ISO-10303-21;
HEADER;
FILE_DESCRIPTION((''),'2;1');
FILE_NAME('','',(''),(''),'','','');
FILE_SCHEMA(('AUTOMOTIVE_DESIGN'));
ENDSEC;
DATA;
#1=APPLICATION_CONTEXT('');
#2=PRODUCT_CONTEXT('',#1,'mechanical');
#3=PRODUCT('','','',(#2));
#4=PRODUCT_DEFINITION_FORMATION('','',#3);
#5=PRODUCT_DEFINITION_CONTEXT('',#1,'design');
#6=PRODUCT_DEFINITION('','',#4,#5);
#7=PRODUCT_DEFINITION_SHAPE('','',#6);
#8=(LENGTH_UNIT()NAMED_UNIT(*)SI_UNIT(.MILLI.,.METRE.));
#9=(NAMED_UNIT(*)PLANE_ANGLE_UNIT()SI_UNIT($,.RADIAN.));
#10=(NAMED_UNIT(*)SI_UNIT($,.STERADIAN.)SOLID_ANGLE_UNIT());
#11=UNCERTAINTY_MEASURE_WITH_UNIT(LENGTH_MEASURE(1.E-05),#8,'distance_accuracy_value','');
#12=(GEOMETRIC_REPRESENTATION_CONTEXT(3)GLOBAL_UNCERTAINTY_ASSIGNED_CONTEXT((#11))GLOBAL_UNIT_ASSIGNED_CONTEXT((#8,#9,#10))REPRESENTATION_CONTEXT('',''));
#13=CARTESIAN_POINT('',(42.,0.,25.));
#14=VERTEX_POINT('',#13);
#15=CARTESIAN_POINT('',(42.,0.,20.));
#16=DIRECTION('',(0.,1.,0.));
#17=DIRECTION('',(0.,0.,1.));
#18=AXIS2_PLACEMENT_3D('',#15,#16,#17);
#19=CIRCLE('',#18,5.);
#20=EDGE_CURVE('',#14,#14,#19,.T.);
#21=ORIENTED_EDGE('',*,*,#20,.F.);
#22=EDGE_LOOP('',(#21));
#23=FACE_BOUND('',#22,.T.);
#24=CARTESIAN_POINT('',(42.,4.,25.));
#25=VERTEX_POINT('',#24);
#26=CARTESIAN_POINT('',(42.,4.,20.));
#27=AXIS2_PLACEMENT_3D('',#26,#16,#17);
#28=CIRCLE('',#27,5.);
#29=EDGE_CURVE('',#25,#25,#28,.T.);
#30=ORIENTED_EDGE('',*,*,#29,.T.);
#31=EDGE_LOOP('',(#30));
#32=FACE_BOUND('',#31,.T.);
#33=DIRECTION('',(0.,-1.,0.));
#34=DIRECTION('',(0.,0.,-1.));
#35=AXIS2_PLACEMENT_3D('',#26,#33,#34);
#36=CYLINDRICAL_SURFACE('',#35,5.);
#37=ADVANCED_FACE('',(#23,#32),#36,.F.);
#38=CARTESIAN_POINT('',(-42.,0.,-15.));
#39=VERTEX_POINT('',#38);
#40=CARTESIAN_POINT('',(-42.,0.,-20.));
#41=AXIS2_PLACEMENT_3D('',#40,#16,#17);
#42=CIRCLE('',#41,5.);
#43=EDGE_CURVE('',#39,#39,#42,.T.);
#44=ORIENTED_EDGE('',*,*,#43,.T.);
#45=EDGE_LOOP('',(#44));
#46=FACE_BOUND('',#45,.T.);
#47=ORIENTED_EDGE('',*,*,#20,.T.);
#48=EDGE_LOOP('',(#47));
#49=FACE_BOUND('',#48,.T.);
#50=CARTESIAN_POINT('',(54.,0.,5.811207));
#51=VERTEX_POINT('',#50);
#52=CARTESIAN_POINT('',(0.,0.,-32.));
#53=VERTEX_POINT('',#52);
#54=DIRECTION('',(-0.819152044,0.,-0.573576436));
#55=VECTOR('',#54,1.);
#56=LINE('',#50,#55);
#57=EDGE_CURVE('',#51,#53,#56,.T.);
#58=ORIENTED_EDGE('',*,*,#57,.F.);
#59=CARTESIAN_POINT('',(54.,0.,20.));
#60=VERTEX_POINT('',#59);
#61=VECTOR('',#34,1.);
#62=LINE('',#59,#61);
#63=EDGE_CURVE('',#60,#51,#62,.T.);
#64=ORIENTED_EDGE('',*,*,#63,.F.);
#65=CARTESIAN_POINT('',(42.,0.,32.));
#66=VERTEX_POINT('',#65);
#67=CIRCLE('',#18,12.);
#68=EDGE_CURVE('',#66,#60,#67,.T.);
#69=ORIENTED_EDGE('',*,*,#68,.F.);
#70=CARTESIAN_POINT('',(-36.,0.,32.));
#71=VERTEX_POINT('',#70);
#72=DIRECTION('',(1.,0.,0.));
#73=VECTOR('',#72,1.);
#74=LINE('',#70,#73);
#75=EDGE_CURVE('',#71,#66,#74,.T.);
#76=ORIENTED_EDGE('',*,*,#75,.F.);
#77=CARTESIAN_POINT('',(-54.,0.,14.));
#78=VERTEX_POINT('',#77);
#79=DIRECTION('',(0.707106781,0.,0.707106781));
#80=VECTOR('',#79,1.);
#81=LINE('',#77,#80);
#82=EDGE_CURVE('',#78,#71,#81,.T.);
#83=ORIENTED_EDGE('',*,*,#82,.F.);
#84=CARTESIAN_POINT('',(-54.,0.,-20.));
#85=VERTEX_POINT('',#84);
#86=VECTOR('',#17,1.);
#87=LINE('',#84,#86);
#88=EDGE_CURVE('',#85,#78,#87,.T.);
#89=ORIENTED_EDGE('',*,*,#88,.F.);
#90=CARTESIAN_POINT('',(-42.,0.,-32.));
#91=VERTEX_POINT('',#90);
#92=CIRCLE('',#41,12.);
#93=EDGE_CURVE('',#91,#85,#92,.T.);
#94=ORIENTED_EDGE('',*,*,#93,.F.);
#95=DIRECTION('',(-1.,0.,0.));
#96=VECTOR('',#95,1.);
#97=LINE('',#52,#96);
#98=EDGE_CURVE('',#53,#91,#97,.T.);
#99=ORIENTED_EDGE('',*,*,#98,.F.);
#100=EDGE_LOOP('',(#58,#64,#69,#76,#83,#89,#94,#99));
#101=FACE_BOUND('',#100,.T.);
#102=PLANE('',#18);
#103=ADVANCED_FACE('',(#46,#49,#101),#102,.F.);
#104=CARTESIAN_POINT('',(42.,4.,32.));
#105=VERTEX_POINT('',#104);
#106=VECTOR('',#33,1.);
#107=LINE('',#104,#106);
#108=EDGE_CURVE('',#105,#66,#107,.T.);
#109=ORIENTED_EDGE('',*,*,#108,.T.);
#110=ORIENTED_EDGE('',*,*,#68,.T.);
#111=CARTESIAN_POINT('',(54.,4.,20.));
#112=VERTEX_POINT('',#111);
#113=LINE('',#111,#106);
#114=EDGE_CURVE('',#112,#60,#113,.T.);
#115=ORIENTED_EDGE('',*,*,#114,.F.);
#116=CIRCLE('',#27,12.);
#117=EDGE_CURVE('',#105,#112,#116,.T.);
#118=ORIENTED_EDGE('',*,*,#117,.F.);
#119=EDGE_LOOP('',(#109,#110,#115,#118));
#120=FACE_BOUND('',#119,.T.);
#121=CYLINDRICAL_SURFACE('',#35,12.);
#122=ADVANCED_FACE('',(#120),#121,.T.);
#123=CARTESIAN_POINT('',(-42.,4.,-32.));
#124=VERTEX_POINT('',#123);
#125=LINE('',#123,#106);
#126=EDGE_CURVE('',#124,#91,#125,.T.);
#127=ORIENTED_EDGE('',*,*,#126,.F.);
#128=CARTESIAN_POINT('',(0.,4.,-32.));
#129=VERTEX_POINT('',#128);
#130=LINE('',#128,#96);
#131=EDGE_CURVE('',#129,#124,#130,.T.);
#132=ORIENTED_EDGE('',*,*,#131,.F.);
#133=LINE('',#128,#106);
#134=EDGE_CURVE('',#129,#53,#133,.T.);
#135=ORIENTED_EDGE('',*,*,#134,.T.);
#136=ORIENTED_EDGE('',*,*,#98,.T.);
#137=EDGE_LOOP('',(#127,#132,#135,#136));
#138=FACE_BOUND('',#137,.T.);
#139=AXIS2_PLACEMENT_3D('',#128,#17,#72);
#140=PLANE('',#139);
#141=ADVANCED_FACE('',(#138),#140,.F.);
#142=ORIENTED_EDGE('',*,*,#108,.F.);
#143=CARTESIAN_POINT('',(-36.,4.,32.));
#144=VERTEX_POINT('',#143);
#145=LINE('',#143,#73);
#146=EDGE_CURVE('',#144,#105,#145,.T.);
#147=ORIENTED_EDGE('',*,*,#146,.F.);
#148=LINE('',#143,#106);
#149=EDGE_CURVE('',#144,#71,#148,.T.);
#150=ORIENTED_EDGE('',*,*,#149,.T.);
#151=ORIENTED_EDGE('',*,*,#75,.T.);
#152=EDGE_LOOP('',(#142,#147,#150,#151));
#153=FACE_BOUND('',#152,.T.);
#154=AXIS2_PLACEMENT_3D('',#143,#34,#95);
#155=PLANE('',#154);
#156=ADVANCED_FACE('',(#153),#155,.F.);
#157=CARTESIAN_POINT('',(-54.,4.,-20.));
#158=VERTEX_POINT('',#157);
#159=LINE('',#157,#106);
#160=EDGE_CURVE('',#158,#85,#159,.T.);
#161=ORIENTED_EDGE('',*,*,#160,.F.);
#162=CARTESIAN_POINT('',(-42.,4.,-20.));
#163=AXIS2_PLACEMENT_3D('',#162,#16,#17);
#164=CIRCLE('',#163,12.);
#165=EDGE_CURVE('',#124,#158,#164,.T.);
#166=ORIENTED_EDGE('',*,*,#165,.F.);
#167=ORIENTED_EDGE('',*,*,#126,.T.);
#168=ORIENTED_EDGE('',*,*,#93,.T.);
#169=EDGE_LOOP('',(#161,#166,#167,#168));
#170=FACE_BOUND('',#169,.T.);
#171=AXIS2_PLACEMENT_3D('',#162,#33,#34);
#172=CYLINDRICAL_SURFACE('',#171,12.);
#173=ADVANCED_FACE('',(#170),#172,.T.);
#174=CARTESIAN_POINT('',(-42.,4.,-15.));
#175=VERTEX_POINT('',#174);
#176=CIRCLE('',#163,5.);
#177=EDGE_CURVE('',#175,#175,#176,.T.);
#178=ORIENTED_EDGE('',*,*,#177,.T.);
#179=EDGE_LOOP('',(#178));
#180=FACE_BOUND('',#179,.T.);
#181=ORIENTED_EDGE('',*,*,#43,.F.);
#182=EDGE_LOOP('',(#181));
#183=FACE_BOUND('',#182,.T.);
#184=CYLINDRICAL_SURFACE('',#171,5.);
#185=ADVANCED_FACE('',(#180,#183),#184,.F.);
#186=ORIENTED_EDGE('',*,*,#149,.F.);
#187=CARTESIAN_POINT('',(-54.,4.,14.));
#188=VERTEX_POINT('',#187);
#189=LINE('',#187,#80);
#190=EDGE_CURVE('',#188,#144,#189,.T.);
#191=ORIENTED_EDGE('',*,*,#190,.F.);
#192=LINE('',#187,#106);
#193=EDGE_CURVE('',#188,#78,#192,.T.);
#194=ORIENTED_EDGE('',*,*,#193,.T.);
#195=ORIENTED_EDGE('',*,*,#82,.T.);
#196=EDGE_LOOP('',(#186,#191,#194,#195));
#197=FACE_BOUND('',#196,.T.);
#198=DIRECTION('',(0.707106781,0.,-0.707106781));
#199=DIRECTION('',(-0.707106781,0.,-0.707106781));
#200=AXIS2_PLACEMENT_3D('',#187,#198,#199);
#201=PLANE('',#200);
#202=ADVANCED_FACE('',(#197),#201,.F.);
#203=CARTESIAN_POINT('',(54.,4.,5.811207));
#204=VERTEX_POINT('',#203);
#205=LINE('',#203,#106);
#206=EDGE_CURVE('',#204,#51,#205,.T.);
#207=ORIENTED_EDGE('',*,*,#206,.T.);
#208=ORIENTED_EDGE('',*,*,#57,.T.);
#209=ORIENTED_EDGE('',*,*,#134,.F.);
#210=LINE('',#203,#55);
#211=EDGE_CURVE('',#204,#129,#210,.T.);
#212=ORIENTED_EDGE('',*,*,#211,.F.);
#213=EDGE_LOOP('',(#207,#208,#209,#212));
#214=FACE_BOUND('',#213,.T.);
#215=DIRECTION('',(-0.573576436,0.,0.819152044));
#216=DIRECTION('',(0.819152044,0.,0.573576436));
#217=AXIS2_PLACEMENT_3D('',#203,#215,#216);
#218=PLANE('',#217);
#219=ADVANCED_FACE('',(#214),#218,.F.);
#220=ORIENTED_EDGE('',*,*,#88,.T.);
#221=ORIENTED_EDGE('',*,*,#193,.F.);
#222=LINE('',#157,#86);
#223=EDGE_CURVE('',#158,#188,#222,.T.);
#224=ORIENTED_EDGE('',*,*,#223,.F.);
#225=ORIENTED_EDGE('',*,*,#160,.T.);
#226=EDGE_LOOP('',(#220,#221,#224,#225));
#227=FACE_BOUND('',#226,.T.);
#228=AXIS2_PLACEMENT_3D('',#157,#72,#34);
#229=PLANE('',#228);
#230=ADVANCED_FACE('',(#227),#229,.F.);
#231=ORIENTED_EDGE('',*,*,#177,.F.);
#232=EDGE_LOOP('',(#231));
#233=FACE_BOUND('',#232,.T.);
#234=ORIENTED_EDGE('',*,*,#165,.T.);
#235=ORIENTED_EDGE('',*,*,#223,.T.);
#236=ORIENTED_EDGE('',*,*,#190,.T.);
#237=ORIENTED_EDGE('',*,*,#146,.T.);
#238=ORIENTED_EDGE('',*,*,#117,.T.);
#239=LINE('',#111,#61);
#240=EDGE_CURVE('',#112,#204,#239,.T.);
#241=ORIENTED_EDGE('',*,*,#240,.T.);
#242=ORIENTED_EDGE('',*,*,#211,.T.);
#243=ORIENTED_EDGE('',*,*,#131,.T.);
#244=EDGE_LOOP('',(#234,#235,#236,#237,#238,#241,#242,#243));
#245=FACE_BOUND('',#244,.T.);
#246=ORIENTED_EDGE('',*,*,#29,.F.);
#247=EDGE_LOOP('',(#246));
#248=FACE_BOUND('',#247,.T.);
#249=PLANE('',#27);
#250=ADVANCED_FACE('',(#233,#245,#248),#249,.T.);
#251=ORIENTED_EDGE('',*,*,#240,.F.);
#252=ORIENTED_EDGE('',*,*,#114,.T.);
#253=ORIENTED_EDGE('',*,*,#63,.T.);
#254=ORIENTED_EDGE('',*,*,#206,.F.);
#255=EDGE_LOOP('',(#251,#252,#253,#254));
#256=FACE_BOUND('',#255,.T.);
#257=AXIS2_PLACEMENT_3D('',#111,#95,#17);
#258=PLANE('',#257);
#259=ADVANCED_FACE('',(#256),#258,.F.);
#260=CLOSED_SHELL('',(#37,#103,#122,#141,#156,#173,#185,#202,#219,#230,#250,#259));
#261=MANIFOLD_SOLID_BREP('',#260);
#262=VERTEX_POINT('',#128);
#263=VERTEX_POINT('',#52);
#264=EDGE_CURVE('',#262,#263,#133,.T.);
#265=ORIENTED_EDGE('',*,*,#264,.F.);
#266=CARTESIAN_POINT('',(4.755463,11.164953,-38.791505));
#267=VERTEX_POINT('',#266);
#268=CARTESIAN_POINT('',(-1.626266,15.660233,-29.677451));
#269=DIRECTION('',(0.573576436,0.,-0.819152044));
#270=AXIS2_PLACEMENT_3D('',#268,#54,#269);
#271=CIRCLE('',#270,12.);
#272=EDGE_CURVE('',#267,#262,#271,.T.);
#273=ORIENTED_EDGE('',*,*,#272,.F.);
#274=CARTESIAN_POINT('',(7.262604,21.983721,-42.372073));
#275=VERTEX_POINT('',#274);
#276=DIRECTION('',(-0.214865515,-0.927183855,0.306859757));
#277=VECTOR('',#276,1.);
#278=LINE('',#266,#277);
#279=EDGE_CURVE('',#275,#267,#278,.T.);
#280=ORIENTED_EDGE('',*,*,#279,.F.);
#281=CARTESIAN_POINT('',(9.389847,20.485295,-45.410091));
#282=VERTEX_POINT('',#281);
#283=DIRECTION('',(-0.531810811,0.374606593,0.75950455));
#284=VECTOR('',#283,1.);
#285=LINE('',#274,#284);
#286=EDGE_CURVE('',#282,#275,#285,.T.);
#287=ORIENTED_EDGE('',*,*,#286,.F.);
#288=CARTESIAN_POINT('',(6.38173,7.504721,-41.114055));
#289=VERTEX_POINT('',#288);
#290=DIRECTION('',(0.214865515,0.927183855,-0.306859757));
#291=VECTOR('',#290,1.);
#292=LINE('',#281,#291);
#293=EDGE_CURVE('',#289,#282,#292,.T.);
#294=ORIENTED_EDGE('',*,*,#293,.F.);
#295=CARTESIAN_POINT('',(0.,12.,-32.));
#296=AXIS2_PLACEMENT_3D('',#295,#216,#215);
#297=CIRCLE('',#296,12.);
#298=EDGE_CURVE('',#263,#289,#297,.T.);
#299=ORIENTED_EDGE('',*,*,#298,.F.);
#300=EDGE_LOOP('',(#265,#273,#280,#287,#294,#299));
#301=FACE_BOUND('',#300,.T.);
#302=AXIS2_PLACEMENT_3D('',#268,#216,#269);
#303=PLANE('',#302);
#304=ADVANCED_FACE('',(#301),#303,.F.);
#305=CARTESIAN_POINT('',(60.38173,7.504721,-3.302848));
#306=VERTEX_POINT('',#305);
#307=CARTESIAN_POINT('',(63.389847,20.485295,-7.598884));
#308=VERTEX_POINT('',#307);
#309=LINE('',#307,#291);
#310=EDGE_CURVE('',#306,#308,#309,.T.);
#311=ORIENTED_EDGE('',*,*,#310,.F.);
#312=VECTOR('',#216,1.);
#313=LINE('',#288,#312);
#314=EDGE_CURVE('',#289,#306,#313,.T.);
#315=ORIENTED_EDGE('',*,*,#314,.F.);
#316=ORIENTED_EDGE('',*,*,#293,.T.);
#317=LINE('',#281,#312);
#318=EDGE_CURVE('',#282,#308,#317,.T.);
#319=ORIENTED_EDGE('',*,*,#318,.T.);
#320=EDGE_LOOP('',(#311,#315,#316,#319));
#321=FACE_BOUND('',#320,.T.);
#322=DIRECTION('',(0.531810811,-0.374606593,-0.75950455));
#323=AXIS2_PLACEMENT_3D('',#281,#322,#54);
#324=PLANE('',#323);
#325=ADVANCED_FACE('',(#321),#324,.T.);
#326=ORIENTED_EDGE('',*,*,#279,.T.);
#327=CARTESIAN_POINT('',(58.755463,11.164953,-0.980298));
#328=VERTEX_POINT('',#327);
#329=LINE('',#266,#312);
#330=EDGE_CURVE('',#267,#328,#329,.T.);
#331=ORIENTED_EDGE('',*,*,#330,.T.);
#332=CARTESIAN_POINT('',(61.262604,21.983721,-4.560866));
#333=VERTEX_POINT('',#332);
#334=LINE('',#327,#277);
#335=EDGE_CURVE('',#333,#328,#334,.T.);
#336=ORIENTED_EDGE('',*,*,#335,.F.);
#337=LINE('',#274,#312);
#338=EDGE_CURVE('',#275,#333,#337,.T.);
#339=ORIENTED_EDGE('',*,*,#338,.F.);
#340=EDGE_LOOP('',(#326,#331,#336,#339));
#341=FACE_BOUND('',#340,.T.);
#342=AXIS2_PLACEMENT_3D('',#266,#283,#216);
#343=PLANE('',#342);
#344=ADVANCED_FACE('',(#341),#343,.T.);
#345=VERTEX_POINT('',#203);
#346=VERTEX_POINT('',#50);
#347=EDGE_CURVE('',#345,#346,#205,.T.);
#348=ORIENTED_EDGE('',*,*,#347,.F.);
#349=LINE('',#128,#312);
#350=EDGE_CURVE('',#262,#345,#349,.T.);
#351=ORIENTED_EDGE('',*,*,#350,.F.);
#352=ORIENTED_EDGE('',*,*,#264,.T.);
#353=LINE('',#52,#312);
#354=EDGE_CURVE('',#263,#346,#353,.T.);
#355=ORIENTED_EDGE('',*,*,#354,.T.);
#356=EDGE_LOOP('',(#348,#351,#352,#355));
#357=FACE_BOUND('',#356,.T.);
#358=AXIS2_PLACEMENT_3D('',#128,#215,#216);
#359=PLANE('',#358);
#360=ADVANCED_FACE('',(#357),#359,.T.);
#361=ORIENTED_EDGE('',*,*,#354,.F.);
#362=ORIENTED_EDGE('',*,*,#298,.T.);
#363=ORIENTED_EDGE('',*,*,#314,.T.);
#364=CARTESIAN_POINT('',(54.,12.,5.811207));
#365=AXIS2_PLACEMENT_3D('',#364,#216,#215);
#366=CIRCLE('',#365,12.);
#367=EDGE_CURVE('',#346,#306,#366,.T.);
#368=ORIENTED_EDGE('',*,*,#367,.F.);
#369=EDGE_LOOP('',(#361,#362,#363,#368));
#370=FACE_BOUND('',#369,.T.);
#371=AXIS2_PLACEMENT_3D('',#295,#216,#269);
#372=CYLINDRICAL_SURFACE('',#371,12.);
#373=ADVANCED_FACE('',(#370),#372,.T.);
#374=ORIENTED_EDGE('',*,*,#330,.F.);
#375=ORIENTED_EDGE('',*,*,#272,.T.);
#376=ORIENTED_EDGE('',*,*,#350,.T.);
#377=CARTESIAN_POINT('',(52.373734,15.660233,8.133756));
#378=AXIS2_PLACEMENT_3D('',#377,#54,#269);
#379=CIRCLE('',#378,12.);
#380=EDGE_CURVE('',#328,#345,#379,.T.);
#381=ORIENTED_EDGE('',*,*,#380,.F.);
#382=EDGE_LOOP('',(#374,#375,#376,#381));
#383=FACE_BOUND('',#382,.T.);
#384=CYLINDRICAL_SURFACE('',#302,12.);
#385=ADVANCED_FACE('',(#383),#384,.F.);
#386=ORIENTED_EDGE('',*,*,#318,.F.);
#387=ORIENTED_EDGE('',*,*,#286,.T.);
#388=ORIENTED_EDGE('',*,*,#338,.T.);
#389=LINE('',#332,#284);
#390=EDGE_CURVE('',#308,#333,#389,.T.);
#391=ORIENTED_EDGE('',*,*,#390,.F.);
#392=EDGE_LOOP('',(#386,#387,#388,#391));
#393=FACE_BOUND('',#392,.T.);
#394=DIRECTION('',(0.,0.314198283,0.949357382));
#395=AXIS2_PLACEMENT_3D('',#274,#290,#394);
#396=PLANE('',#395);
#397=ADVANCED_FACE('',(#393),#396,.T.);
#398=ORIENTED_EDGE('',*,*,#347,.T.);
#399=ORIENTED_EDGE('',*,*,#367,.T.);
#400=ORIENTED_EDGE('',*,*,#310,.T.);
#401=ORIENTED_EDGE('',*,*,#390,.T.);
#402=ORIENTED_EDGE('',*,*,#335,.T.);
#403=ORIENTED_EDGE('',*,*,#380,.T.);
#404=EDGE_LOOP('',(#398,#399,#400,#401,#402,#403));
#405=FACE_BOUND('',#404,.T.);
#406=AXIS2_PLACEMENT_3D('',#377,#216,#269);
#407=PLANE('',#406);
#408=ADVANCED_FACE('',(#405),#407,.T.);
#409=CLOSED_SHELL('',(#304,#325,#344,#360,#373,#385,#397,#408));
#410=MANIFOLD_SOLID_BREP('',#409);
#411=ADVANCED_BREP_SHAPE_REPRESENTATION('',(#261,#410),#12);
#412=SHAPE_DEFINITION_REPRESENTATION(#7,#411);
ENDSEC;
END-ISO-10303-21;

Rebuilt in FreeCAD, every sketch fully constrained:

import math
import FreeCAD as App
import Part
import Sketcher
from FreeCAD import Vector
Q = App.Units.Quantity

doc = App.newDocument("Part")
body = doc.addObject("PartDesign::Body", "Body")

sketch1 = body.newObject("Sketcher::SketchObject", "Sketch")
sketch1.AttachmentSupport = (doc.getObject("XZ_Plane"), [""])
sketch1.MapMode = "FlatFace"
sketch1.addGeometry([
    Part.LineSegment(Vector(0, -32, 0), Vector(-42, -32, 0)),
    Part.ArcOfCircle(Part.Circle(Vector(-42, -20, 0), Vector(0, 0, 1), 12), math.radians(-180), math.radians(-90)),
    Part.LineSegment(Vector(-54, -20, 0), Vector(-54, 14, 0)),
    Part.LineSegment(Vector(-54, 14, 0), Vector(-36, 32, 0)),
    Part.LineSegment(Vector(-36, 32, 0), Vector(42, 32, 0)),
    Part.ArcOfCircle(Part.Circle(Vector(42, 20, 0), Vector(0, 0, 1), 12), math.radians(0), math.radians(90)),
    Part.LineSegment(Vector(54, 20, 0), Vector(54, 6, 0)),
    Part.LineSegment(Vector(54, 6, 0), Vector(0, -32, 0)),
    Part.Circle(Vector(42, 20, 0), Vector(0, 0, 1), 5),
    Part.Circle(Vector(-42, -20, 0), Vector(0, 0, 1), 5),
], False)
sketch1.addConstraint([
    Sketcher.Constraint("Tangent", 0, 2, 1, 2),
    Sketcher.Constraint("Tangent", 1, 1, 2, 1),
    Sketcher.Constraint("Coincident", 2, 2, 3, 1),
    Sketcher.Constraint("Coincident", 3, 2, 4, 1),
    Sketcher.Constraint("Tangent", 4, 2, 5, 2),
    Sketcher.Constraint("Tangent", 5, 1, 6, 1),
    Sketcher.Constraint("Coincident", 6, 2, 7, 1),
    Sketcher.Constraint("Coincident", 7, 2, 0, 1),
    Sketcher.Constraint("Horizontal", 0),
    Sketcher.Constraint("Vertical", 2),
    Sketcher.Constraint("Horizontal", 4),
    Sketcher.Constraint("Vertical", 6),
    Sketcher.Constraint("Coincident", 8, 3, 5, 3),
    Sketcher.Constraint("Coincident", 9, 3, 1, 3),
    Sketcher.Constraint("Equal", 1, 5),
    Sketcher.Constraint("Equal", 8, 9),
    Sketcher.Constraint("Symmetric", 1, 3, 5, 3, -1, 1),
    Sketcher.Constraint("PointOnObject", 7, 2, -2),
    Sketcher.Constraint("Diameter", 8, Q("10 mm")),
    Sketcher.Constraint("Radius", 1, Q("12 mm")),
    Sketcher.Constraint("DistanceX", 0, 2, 0, 1, Q("42 mm")),
    Sketcher.Constraint("DistanceX", 4, 1, 4, 2, Q("78 mm")),
    Sketcher.Constraint("DistanceY", 2, 1, 2, 2, Q("34 mm")),
    Sketcher.Constraint("Angle", 3, Q("45 deg")),
    Sketcher.Constraint("Angle", 7, Q("-145 deg")),
])
pad1 = body.newObject("PartDesign::Pad", "Pad")
pad1.Profile = sketch1
pad1.Length = 4
pad1.Reversed = True
body2 = doc.addObject("PartDesign::Body", "Body001")

sketch2 = body2.newObject("Sketcher::SketchObject", "Sketch001")
sketch2.Placement = App.Placement(Vector(38.964918, 0, 27.283529), App.Rotation(Vector(0, -1, 0), Vector(0.573576436, 0, -0.819152044), Vector(0.819152044, 0, 0.573576436), "ZXY"))
sketch2.addGeometry([
    Part.LineSegment(Vector(-22, 38.9, 0), Vector(-11.2, 34.5, 0)),
    Part.ArcOfCircle(Part.Circle(Vector(-15.7, 23.4, 0), Vector(0, 0, 1), 12), math.radians(14), math.radians(68)),
    Part.LineSegment(Vector(-4, 26.2, 0), Vector(0, 26.2, 0)),
    Part.ArcOfCircle(Part.Circle(Vector(-12, 26.2, 0), Vector(0, 0, 1), 12), math.radians(0), math.radians(68)),
    Part.LineSegment(Vector(-7.5, 37.3, 0), Vector(-20.5, 42.6, 0)),
    Part.LineSegment(Vector(-20.5, 42.6, 0), Vector(-22, 38.9, 0)),
], False)
sketch2.addConstraint([
    Sketcher.Constraint("Tangent", 0, 2, 1, 2),
    Sketcher.Constraint("Coincident", 1, 1, 2, 1),
    Sketcher.Constraint("Coincident", 2, 2, 3, 1),
    Sketcher.Constraint("Tangent", 3, 2, 4, 1),
    Sketcher.Constraint("Coincident", 4, 2, 5, 1),
    Sketcher.Constraint("Coincident", 5, 2, 0, 1),
    Sketcher.Constraint("Horizontal", 2),
    Sketcher.Constraint("Equal", 1, 3),
    Sketcher.Constraint("PointOnObject", 2, 2, -2),
    Sketcher.Constraint("Parallel", 0, 4),
    Sketcher.Constraint("Perpendicular", 4, 5),
    Sketcher.Constraint("Horizontal", 3, 3, 1, 1),
    Sketcher.Constraint("Radius", 1, Q("12 mm")),
    Sketcher.Constraint("DistanceX", 2, 1, 2, 2, Q("4 mm")),
    Sketcher.Constraint("Angle", 0, Q("-22 deg")),
    Sketcher.Constraint("Distance", 4, Q("14 mm")),
    Sketcher.Constraint("Distance", 5, Q("4 mm")),
    Sketcher.Constraint("DistanceY", -1, 1, 3, 2, Q("37.339072 mm")),
])
pad2 = body2.newObject("PartDesign::Pad", "Pad001")
pad2.Profile = sketch2
pad2.Length = 65.921828
pad2.Reversed = True

doc.recompute()
